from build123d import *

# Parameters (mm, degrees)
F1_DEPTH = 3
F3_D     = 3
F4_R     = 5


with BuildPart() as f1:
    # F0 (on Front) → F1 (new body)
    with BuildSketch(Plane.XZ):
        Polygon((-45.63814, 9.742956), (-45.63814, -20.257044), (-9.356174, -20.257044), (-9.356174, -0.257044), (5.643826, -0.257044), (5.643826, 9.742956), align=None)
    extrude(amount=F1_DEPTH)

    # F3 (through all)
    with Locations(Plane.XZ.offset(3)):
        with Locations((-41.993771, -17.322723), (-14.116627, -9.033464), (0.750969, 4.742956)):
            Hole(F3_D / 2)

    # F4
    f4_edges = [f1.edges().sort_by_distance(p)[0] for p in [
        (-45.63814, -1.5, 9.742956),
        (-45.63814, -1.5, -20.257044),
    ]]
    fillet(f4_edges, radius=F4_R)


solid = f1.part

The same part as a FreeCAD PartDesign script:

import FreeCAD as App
import Part
import Sketcher
from FreeCAD import Vector


def edges_at(feature, points):
    """Names of the edges that pass closest to the given points."""
    edges = feature.Shape.Edges
    near = lambda p: min(range(len(edges)), key=lambda i: edges[i].distToShape(Part.Vertex(*p))[0])
    return sorted({f"Edge{near(p) + 1}" for p in points})

doc = App.newDocument("Part")
body = doc.addObject("PartDesign::Body", "Body")

# Sketch on XZ plane
sketch1 = doc.addObject("Sketcher::SketchObject", "Sketch")
body.addObject(sketch1)
sketch1.AttachmentSupport = (doc.XZ_Plane, [""])
sketch1.MapMode = "FlatFace"
sketch1.addGeometry([
    Part.LineSegment(Vector(-46, 10, 0), Vector(-46, -20, 0)),  # 0
    Part.LineSegment(Vector(-46, -20, 0), Vector(-9, -20, 0)),  # 1
    Part.LineSegment(Vector(-9, -20, 0), Vector(-9, 0, 0)),  # 2
    Part.LineSegment(Vector(-9, 0, 0), Vector(6, 0, 0)),  # 3
    Part.LineSegment(Vector(6, 0, 0), Vector(6, 10, 0)),  # 4
    Part.LineSegment(Vector(6, 10, 0), Vector(-46, 10, 0)),  # 5
], False)
sketch1.addConstraint([
    Sketcher.Constraint("Coincident", 0, 2, 1, 1),
    Sketcher.Constraint("Coincident", 1, 2, 2, 1),
    Sketcher.Constraint("Coincident", 2, 2, 3, 1),
    Sketcher.Constraint("Coincident", 3, 2, 4, 1),
    Sketcher.Constraint("Coincident", 4, 2, 5, 1),
    Sketcher.Constraint("Coincident", 5, 2, 0, 1),
    Sketcher.Constraint("Vertical", 0),
    Sketcher.Constraint("Horizontal", 1),
    Sketcher.Constraint("Vertical", 2),
    Sketcher.Constraint("Horizontal", 3),
    Sketcher.Constraint("Vertical", 4),
    Sketcher.Constraint("Horizontal", 5),
    Sketcher.Constraint("DistanceX", 3, 1, 3, 2, 15.0),
    Sketcher.Constraint("DistanceY", 0, 2, 0, 1, 30.0),
    Sketcher.Constraint("DistanceY", 2, 1, 2, 2, 20.0),
    Sketcher.Constraint("DistanceX", 1, 1, 1, 2, 36.281966),
    Sketcher.Constraint("DistanceX", 0, 2, -1, 1, 45.63814),
    Sketcher.Constraint("DistanceY", 0, 2, -1, 1, 20.257044),
])
pad1 = doc.addObject("PartDesign::Pad", "Pad")
body.addObject(pad1)
pad1.Profile = sketch1
pad1.Length = 3

# Sketch on XZ plane
sketch2 = doc.addObject("Sketcher::SketchObject", "Sketch001")
body.addObject(sketch2)
sketch2.AttachmentSupport = (doc.XZ_Plane, [""])
sketch2.MapMode = "FlatFace"
sketch2.AttachmentOffset = App.Placement(Vector(0, 0, 3), App.Rotation())
sketch2.addGeometry([
    Part.Circle(Vector(-42, -17.3, 0), Vector(0, 0, 1), 1.5),
    Part.Circle(Vector(-14.1, -9, 0), Vector(0, 0, 1), 1.5),
    Part.Circle(Vector(0.8, 4.7, 0), Vector(0, 0, 1), 1.5),
], False)
sketch2.addConstraint([
    Sketcher.Constraint("Equal", 0, 1),
    Sketcher.Constraint("Equal", 1, 2),
    Sketcher.Constraint("Diameter", 0, 3.0),
    Sketcher.Constraint("DistanceX", 0, 3, -1, 1, 41.993771),
    Sketcher.Constraint("DistanceX", -1, 1, 2, 3, 0.750969),
    Sketcher.Constraint("DistanceY", 0, 3, 1, 3, 8.289259),
    Sketcher.Constraint("DistanceY", 1, 3, 2, 3, 13.77642),
    Sketcher.Constraint("DistanceY", 0, 3, -1, 1, 17.322723),
    Sketcher.Constraint("DistanceX", 1, 3, -1, 1, 14.116627),
])
doc.recompute()
hole = doc.addObject("PartDesign::Hole", "Hole")
body.addObject(hole)
hole.Profile = sketch2
hole.ThreadType = "None"
hole.Diameter = 3
hole.DepthType = "ThroughAll"
doc.recompute()

fillet = doc.addObject("PartDesign::Fillet", "Fillet")
body.addObject(fillet)
fillet.Base = (hole, edges_at(hole, [(-45.638, -1.5, 9.743), (-45.638, -1.5, -20.257)]))
fillet.Radius = 5

doc.recompute()
